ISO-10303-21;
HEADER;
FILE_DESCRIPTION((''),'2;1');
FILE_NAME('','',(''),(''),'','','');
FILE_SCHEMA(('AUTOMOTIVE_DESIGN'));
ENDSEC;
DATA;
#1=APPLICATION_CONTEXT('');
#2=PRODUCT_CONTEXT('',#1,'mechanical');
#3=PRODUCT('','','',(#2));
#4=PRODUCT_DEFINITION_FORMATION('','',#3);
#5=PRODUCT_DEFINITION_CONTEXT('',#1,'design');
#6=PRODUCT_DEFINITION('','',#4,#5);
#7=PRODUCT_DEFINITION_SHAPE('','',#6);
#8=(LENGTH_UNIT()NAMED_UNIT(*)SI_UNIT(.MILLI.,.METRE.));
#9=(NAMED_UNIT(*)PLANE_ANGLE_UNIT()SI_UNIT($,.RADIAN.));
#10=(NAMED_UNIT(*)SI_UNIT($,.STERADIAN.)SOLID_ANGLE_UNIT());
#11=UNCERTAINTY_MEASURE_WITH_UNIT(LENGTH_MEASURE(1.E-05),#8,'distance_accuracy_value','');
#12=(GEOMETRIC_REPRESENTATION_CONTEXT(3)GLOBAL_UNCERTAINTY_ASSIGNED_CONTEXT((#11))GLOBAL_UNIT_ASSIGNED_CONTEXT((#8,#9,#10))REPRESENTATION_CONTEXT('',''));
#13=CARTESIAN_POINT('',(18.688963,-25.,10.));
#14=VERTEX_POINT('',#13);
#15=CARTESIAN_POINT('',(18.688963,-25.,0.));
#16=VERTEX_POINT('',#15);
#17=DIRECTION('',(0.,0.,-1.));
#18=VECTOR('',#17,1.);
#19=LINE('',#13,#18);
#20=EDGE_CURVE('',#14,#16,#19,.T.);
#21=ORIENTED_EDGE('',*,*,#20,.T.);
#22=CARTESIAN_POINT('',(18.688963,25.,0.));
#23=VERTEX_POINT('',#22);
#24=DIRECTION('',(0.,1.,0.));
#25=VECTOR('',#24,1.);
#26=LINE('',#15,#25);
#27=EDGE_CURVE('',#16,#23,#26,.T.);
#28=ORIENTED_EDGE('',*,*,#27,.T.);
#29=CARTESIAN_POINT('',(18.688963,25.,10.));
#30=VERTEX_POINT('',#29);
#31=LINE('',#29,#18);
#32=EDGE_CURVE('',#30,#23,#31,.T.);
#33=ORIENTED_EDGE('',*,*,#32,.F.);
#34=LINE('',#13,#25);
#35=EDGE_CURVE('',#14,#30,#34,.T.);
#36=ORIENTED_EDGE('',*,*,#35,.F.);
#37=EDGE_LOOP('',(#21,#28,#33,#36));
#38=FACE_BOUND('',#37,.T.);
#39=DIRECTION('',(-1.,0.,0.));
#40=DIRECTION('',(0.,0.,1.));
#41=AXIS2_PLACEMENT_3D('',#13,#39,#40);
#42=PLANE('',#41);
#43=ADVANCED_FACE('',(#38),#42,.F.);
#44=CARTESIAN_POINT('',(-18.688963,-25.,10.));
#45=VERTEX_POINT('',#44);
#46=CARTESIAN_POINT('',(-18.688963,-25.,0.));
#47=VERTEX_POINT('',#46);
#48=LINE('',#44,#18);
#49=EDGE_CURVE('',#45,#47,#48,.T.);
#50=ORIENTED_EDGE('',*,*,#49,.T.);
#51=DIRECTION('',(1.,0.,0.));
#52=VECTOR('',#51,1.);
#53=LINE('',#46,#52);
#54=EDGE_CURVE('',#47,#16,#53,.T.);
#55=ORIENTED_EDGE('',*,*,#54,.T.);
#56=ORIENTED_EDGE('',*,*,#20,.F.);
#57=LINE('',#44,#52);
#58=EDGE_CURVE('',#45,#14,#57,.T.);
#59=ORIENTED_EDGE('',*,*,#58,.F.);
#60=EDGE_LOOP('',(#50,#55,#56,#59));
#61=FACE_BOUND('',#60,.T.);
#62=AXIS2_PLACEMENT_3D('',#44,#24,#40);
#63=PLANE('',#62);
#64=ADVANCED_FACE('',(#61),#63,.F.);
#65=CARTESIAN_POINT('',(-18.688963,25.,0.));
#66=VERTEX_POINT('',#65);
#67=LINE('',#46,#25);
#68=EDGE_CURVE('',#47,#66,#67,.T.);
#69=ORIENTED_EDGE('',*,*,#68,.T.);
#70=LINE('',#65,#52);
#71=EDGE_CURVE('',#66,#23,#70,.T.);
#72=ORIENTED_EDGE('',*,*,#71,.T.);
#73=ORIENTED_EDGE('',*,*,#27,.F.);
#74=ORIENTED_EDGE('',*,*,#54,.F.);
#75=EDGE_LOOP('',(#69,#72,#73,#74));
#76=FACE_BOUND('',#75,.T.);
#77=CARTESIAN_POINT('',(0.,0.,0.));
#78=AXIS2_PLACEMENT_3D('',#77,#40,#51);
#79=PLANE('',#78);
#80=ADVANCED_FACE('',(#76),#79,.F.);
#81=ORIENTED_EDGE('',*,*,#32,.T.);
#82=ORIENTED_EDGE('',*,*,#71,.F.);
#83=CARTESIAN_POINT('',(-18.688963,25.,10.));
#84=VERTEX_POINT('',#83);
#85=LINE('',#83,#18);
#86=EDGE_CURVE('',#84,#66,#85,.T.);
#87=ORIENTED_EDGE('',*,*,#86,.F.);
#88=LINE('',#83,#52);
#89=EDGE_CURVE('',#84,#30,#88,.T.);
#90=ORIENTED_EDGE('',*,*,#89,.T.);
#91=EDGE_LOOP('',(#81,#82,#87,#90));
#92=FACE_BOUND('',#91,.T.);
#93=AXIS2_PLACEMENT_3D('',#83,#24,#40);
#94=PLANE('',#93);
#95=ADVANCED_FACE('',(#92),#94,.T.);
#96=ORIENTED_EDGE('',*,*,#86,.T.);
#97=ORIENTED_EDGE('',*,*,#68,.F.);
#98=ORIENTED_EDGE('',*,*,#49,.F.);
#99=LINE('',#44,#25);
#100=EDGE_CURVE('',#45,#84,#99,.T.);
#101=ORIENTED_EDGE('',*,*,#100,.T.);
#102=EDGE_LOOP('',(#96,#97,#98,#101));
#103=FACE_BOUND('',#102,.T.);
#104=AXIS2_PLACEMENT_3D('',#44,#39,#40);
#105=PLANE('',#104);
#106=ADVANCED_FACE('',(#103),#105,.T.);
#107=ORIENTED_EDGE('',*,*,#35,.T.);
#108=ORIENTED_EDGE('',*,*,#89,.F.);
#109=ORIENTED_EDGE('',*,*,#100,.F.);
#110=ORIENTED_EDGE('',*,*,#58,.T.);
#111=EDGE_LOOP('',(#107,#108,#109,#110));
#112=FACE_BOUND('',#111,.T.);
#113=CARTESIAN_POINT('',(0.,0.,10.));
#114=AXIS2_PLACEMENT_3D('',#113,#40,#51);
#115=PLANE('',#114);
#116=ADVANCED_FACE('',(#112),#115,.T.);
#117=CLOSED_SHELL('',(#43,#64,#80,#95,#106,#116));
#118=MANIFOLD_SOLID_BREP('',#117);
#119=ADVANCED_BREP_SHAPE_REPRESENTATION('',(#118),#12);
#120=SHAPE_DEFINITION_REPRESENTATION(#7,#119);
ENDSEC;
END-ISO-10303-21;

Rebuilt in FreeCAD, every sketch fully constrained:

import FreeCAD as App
import Part
import Sketcher
from FreeCAD import Vector
Q = App.Units.Quantity


def add_polygon(sketch, points):
    """Adds a closed chain of lines whose ends are joined by coincident constraints."""
    first, n = sketch.GeometryCount, len(points)
    for a, b in zip(points, points[1:] + points[:1]):
        sketch.addGeometry(Part.LineSegment(App.Vector(*a, 0), App.Vector(*b, 0)), False)
    for i in range(n):
        sketch.addConstraint(Sketcher.Constraint("Coincident", first + i, 2, first + (i + 1) % n, 1))

doc = App.newDocument("Part")
body = doc.addObject("PartDesign::Body", "Body")

sketch1 = doc.addObject("Sketcher::SketchObject", "Sketch")
body.addObject(sketch1)
sketch1.AttachmentSupport = (doc.XY_Plane, [""])
sketch1.MapMode = "FlatFace"
add_polygon(sketch1, [(-18.688963, 25), (-18.688963, -25), (18.688963, -25), (18.688963, 25)])
sketch1.addConstraint([
    Sketcher.Constraint("Vertical", 0),
    Sketcher.Constraint("Horizontal", 1),
    Sketcher.Constraint("Vertical", 2),
    Sketcher.Constraint("Horizontal", 3),
    Sketcher.Constraint("Symmetric", 0, 2, 2, 2, -1, 1),
    Sketcher.Constraint("DistanceY", 0, 2, 0, 1, Q("50 mm")),
    Sketcher.Constraint("DistanceX", 1, 1, 1, 2, Q("37.377927 mm")),
])
pad1 = doc.addObject("PartDesign::Pad", "Pad")
body.addObject(pad1)
pad1.Profile = sketch1
pad1.Length = 10

doc.recompute()
